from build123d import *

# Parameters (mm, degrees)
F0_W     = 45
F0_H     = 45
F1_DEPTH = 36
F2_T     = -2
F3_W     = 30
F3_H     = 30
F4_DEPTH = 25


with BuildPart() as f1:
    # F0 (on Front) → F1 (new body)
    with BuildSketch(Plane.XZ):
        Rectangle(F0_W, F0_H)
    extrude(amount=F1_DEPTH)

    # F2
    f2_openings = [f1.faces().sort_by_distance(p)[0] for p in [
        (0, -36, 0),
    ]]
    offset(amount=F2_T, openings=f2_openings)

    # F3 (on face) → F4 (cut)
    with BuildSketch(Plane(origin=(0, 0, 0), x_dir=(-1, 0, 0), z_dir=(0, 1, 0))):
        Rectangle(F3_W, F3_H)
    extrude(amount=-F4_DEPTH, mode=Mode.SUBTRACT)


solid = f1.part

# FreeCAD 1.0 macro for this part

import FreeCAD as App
import Part
import Sketcher


def faces_at(feature, points):
    """Names of the faces that lie closest to the given points."""
    faces = feature.Shape.Faces
    near = lambda p: min(range(len(faces)), key=lambda i: faces[i].distToShape(Part.Vertex(*p))[0])
    return sorted({f"Face{near(p) + 1}" for p in points})

doc = App.newDocument("Part")
body = doc.addObject("PartDesign::Body", "Body")

# Sketch on XZ plane
sketch1 = body.newObject("Sketcher::SketchObject", "Sketch")
sketch1.AttachmentSupport = (doc.getObject("XZ_Plane"), [""])
sketch1.MapMode = "FlatFace"
sketch1.addGeometry([
    Part.LineSegment(App.Vector(-22, 22, 0), App.Vector(-22, -22, 0)),
    Part.LineSegment(App.Vector(-22, -22, 0), App.Vector(22, -22, 0)),
    Part.LineSegment(App.Vector(22, -22, 0), App.Vector(22, 22, 0)),
    Part.LineSegment(App.Vector(22, 22, 0), App.Vector(-22, 22, 0)),
], False)
sketch1.addConstraint([
    Sketcher.Constraint("Coincident", 0, 2, 1, 1),
    Sketcher.Constraint("Coincident", 1, 2, 2, 1),
    Sketcher.Constraint("Coincident", 2, 2, 3, 1),
    Sketcher.Constraint("Coincident", 3, 2, 0, 1),
    Sketcher.Constraint("Vertical", 0),
    Sketcher.Constraint("Horizontal", 1),
    Sketcher.Constraint("Vertical", 2),
    Sketcher.Constraint("Horizontal", 3),
    Sketcher.Constraint("Symmetric", 0, 2, 2, 2, -1, 1),
    Sketcher.Constraint("Equal", 3, 0),
    Sketcher.Constraint("DistanceX", 1, 1, 1, 2, 45.0),
])
pad1 = body.newObject("PartDesign::Pad", "Pad")
pad1.Profile = sketch1
pad1.Length = 36
doc.recompute()

thickness = body.newObject("PartDesign::Thickness", "Thickness")
thickness.Base = (pad1, faces_at(pad1, [(0, -36, 0)]))
thickness.Value = 2
thickness.Reversed = True
thickness.Join = "Arc"

# Sketch on XZ plane
sketch2 = body.newObject("Sketcher::SketchObject", "Sketch001")
sketch2.AttachmentSupport = (doc.getObject("XZ_Plane"), [""])
sketch2.MapMode = "FlatFace"
sketch2.addGeometry([
    Part.LineSegment(App.Vector(15, 15, 0), App.Vector(15, -15, 0)),
    Part.LineSegment(App.Vector(15, -15, 0), App.Vector(-15, -15, 0)),
    Part.LineSegment(App.Vector(-15, -15, 0), App.Vector(-15, 15, 0)),
    Part.LineSegment(App.Vector(-15, 15, 0), App.Vector(15, 15, 0)),
], False)
sketch2.addConstraint([
    Sketcher.Constraint("Coincident", 0, 2, 1, 1),
    Sketcher.Constraint("Coincident", 1, 2, 2, 1),
    Sketcher.Constraint("Coincident", 2, 2, 3, 1),
    Sketcher.Constraint("Coincident", 3, 2, 0, 1),
    Sketcher.Constraint("Vertical", 0),
    Sketcher.Constraint("Horizontal", 1),
    Sketcher.Constraint("Vertical", 2),
    Sketcher.Constraint("Horizontal", 3),
    Sketcher.Constraint("Symmetric", 0, 2, 2, 2, -1, 1),
    Sketcher.Constraint("Equal", 3, 0),
    Sketcher.Constraint("DistanceX", 1, 2, 1, 1, 30.0),
])
pocket1 = body.newObject("PartDesign::Pocket", "Pocket")
pocket1.Profile = sketch2
pocket1.Length = 25
pocket1.Reversed = True

doc.recompute()
